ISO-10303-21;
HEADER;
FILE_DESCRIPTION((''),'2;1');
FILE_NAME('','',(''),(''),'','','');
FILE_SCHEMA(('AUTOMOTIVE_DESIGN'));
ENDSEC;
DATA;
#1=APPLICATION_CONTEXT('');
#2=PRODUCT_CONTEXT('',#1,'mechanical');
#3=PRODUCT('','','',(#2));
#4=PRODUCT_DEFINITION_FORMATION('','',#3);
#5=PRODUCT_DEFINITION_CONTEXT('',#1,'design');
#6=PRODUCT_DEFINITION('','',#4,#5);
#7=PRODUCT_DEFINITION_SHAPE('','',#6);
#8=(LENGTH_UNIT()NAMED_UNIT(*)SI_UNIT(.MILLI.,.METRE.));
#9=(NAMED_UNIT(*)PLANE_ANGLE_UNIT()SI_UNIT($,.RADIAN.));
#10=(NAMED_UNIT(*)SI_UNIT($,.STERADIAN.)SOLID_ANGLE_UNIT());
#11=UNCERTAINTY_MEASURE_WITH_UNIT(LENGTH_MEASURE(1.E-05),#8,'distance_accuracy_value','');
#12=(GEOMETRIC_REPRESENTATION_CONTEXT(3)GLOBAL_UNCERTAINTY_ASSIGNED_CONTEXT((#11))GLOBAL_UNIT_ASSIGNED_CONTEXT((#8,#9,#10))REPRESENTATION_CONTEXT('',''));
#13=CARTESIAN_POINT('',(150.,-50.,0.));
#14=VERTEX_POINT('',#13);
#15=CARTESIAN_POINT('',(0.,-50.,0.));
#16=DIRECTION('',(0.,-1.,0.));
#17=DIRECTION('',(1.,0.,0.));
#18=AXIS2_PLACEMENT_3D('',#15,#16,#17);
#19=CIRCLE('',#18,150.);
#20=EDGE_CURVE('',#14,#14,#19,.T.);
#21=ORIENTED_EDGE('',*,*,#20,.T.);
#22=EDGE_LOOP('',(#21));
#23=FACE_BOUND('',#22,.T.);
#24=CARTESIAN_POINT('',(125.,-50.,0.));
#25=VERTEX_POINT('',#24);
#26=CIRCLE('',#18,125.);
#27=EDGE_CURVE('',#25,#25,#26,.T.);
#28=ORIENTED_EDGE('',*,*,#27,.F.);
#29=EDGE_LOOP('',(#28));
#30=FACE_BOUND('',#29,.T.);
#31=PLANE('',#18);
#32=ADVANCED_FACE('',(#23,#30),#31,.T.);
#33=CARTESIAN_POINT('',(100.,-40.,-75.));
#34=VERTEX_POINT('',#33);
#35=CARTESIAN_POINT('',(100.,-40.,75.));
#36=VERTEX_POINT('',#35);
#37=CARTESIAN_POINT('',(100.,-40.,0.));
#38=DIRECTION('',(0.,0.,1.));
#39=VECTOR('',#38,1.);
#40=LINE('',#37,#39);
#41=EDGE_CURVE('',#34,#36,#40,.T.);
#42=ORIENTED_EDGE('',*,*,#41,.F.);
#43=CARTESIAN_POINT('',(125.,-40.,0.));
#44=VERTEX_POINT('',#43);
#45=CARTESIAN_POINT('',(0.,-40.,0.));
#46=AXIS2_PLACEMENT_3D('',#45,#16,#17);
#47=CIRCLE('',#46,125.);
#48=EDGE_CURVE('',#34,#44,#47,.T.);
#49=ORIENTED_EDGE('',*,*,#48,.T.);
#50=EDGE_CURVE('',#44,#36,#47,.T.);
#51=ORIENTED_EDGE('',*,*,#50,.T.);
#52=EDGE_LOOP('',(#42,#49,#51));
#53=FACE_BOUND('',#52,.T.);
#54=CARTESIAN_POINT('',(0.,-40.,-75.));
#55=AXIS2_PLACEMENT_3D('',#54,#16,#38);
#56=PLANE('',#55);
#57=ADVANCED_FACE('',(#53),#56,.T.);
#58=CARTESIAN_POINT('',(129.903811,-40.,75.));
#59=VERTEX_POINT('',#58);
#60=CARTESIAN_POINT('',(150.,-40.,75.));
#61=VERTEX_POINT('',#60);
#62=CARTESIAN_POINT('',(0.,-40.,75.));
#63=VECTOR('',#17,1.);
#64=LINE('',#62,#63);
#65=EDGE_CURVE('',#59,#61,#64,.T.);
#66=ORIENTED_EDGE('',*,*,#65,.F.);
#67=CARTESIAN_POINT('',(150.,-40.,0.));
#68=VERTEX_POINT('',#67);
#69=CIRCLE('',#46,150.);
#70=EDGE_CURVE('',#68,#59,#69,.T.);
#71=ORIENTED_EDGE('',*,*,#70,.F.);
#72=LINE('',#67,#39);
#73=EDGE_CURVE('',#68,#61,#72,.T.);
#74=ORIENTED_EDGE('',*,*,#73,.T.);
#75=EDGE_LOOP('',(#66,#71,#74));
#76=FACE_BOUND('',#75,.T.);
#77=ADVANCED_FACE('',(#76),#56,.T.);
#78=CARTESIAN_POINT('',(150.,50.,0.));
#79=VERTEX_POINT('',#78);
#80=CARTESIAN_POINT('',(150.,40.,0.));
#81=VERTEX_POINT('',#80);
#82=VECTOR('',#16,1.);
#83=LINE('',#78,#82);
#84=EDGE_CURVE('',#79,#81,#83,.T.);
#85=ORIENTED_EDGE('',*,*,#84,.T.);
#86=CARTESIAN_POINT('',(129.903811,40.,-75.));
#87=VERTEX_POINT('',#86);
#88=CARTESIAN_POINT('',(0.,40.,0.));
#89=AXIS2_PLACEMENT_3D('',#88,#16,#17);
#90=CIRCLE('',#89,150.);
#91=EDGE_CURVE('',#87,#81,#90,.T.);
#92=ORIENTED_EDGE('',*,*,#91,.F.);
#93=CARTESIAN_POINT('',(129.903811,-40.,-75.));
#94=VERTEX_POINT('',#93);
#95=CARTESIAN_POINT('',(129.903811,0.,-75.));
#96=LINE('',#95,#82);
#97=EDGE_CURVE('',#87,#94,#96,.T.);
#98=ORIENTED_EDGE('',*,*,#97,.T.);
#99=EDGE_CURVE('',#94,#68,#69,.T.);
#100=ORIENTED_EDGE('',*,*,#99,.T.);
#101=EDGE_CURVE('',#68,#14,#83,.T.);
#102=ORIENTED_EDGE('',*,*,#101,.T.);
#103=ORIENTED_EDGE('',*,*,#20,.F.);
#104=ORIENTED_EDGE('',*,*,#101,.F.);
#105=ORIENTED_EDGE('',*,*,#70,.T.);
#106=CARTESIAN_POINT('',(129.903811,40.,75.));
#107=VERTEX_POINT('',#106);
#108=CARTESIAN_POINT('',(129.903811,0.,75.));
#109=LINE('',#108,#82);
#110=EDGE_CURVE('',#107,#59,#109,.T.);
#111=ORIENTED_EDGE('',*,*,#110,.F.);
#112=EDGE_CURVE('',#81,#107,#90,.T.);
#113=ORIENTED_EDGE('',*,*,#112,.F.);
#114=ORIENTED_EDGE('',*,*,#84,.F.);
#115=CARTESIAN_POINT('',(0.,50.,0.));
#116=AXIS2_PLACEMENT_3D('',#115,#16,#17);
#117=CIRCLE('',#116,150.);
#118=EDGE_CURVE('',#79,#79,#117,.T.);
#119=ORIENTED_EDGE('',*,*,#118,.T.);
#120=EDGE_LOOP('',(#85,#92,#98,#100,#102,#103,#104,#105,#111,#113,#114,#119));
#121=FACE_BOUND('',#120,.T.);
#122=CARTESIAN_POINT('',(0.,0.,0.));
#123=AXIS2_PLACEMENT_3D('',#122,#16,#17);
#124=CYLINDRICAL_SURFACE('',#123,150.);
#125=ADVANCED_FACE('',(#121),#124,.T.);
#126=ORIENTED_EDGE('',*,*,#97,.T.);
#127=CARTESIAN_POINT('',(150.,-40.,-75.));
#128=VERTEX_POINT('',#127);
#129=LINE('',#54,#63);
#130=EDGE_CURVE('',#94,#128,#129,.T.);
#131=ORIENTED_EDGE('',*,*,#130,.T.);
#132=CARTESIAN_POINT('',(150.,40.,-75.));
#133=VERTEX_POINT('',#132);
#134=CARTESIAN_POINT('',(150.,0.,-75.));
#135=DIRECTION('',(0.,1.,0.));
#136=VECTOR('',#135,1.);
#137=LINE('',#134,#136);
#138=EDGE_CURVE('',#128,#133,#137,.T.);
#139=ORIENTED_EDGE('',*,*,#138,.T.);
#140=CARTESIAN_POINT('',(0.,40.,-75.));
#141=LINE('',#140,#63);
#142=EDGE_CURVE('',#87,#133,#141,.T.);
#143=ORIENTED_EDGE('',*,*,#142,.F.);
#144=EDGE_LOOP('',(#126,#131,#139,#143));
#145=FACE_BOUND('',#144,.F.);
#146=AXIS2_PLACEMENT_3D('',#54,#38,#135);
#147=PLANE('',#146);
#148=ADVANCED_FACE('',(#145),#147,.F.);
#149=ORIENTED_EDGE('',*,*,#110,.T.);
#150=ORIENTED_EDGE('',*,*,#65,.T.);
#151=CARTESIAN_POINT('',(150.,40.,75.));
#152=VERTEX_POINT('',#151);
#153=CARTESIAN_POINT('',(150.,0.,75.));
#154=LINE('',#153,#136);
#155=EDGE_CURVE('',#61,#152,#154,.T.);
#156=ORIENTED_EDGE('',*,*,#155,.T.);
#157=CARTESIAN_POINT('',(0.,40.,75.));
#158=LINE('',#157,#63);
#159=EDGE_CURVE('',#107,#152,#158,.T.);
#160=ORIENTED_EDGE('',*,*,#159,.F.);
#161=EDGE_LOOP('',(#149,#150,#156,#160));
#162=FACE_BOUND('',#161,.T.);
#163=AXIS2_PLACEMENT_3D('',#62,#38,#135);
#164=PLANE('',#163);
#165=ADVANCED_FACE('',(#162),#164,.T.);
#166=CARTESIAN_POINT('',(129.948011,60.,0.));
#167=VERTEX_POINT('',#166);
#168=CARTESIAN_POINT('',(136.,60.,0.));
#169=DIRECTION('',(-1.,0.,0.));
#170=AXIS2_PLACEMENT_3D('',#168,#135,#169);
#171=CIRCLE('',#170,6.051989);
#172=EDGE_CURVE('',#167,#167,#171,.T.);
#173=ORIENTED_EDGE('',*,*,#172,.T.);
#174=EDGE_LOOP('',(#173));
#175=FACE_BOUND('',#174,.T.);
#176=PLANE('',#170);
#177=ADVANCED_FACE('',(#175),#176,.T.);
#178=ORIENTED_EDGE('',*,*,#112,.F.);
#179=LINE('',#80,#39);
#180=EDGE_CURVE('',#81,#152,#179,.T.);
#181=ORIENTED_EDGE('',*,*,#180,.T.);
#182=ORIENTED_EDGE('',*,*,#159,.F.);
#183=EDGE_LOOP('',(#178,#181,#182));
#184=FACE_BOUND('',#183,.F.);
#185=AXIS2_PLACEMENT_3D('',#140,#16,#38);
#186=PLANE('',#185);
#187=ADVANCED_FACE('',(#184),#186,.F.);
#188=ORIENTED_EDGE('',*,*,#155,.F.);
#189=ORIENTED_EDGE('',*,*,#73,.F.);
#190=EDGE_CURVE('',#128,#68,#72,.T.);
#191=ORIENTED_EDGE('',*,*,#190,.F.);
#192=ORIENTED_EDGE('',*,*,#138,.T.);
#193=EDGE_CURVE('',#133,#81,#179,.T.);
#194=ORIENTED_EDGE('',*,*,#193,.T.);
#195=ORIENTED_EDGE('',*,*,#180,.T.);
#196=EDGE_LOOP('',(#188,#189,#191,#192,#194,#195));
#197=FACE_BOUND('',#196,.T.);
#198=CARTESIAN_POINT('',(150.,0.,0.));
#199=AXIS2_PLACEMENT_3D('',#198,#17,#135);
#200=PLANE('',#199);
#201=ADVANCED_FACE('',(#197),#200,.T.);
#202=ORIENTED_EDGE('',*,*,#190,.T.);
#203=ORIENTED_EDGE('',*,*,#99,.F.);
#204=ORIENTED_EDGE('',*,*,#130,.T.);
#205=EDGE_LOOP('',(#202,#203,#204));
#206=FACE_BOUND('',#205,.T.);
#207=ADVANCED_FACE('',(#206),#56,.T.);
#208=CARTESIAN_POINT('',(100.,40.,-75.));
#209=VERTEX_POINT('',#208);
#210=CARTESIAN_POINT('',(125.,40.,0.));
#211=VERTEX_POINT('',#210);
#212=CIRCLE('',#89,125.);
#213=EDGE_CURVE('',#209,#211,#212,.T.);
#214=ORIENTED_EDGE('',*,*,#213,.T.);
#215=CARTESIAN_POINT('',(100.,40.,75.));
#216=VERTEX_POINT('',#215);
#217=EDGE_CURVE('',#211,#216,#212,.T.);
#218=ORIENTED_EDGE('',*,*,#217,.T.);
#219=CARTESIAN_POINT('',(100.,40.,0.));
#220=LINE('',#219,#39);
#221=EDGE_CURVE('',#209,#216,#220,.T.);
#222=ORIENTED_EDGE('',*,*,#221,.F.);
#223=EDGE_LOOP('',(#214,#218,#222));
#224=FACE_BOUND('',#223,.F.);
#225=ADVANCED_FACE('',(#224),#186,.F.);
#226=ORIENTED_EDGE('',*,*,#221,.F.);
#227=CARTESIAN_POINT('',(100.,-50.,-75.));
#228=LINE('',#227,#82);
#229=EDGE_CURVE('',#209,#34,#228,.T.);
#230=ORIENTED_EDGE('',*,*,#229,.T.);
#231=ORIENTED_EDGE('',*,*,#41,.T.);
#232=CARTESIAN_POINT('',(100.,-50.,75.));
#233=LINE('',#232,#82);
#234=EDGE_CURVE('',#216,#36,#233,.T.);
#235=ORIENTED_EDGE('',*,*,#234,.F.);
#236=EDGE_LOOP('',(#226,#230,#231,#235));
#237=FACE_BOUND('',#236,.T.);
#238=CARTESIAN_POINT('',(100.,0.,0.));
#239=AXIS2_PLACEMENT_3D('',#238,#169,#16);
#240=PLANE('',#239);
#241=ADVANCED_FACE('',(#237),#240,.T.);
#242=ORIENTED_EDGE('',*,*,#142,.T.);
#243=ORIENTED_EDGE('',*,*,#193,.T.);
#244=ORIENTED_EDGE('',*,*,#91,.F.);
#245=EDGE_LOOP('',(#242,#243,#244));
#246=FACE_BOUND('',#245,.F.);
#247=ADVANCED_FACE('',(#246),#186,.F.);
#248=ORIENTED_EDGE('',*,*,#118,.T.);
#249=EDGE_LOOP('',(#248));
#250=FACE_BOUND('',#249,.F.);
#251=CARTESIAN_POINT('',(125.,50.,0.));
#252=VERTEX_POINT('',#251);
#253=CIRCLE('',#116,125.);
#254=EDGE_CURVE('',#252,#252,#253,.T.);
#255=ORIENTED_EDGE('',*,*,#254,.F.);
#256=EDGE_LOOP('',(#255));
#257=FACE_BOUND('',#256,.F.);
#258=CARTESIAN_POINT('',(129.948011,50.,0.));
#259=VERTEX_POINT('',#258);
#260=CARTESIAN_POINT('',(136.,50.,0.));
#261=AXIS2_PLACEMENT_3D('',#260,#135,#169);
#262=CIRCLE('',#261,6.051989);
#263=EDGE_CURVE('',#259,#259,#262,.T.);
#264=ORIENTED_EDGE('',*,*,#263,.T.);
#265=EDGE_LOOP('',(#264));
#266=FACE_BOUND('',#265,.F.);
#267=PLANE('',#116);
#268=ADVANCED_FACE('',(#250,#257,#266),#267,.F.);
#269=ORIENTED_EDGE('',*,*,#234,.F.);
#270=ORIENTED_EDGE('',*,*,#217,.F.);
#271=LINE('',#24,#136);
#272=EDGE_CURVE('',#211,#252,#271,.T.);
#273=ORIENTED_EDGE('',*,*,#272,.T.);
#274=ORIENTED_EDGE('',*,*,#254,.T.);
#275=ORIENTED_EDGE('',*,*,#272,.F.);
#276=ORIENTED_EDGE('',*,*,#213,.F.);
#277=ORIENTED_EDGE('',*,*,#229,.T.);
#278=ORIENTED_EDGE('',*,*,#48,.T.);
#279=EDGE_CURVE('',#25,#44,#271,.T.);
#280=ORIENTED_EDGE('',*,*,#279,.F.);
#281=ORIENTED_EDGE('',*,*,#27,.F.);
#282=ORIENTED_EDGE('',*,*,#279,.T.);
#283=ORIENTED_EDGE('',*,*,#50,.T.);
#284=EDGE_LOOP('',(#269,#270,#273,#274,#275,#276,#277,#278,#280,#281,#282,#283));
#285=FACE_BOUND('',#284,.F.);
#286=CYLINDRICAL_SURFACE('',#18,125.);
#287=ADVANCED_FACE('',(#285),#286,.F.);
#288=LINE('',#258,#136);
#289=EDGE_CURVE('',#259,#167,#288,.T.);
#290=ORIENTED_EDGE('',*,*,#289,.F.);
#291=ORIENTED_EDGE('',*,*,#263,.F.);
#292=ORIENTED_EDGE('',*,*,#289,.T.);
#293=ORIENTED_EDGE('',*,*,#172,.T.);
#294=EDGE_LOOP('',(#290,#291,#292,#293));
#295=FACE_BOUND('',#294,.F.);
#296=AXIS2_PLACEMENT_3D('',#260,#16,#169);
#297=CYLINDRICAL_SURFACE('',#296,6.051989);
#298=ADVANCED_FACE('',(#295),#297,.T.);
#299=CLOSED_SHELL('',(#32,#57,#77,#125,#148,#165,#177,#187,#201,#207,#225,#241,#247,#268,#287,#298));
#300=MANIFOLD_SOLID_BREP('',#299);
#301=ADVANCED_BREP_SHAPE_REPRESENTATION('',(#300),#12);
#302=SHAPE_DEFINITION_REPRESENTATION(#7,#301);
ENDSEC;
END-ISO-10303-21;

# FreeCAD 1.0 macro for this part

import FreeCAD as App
import Part
import Sketcher

V = App.Vector
Q = App.Units.Quantity


def add_polygon(sketch, points):
    """Adds a closed chain of lines whose ends are joined by coincident constraints."""
    first, n = sketch.GeometryCount, len(points)
    for a, b in zip(points, points[1:] + points[:1]):
        sketch.addGeometry(Part.LineSegment(App.Vector(*a, 0), App.Vector(*b, 0)), False)
    for i in range(n):
        sketch.addConstraint(Sketcher.Constraint("Coincident", first + i, 2, first + (i + 1) % n, 1))

doc = App.newDocument("Part")
body = doc.addObject("PartDesign::Body", "Body")

# Sketch on XZ plane
sketch1 = doc.addObject("Sketcher::SketchObject", "Sketch")
body.addObject(sketch1)
sketch1.AttachmentSupport = (doc.XZ_Plane, [""])
sketch1.MapMode = "FlatFace"
sketch1.addGeometry(Part.Circle(V(0, 0, 0), V(0, 0, 1), 150), False)
sketch1.addConstraint([
    Sketcher.Constraint("Coincident", 0, 3, -1, 1),
    Sketcher.Constraint("Diameter", 0, Q("300 mm")),
])
pad1 = doc.addObject("PartDesign::Pad", "Pad")
body.addObject(pad1)
pad1.Profile = sketch1
pad1.Length = 100
pad1.Midplane = True

# Sketch on XZ plane
sketch2 = doc.addObject("Sketcher::SketchObject", "Sketch001")
body.addObject(sketch2)
sketch2.AttachmentSupport = (doc.XZ_Plane, [""])
sketch2.MapMode = "FlatFace"
sketch2.AttachmentOffset = App.Placement(V(0, 0, 50), App.Rotation())
sketch2.addGeometry(Part.Circle(V(0, 0, 0), V(0, 0, 1), 125), False)
sketch2.addConstraint([
    Sketcher.Constraint("Coincident", 0, 3, -1, 1),
    Sketcher.Constraint("Diameter", 0, Q("250 mm")),
])
pocket1 = doc.addObject("PartDesign::Pocket", "Pocket")
body.addObject(pocket1)
pocket1.Profile = sketch2
pocket1.Type = "ThroughAll"

# Sketch on YZ plane
sketch3 = doc.addObject("Sketcher::SketchObject", "Sketch002")
body.addObject(sketch3)
sketch3.AttachmentSupport = (doc.YZ_Plane, [""])
sketch3.MapMode = "FlatFace"
add_polygon(sketch3, [(-40, 75), (-40, -75), (40, -75), (40, 75)])  # lines 0-3
sketch3.addConstraint([
    Sketcher.Constraint("Vertical", 0),
    Sketcher.Constraint("Horizontal", 1),
    Sketcher.Constraint("Vertical", 2),
    Sketcher.Constraint("Horizontal", 3),
    Sketcher.Constraint("Symmetric", 0, 2, 2, 2, -1, 1),
    Sketcher.Constraint("DistanceX", 1, 1, 1, 2, Q("80 mm")),
    Sketcher.Constraint("DistanceY", 0, 2, 0, 1, Q("150 mm")),
])
pad2 = doc.addObject("PartDesign::Pad", "Pad001")
body.addObject(pad2)
pad2.Profile = sketch3
pad2.Length = 150

# Sketch on YZ plane
sketch4 = doc.addObject("Sketcher::SketchObject", "Sketch003")
body.addObject(sketch4)
sketch4.AttachmentSupport = (doc.YZ_Plane, [""])
sketch4.MapMode = "FlatFace"
add_polygon(sketch4, [(40, 75), (40, -75), (-40, -75), (-40, 75)])  # lines 0-3
sketch4.addConstraint([
    Sketcher.Constraint("Vertical", 0),
    Sketcher.Constraint("Horizontal", 1),
    Sketcher.Constraint("Vertical", 2),
    Sketcher.Constraint("Horizontal", 3),
    Sketcher.Constraint("Symmetric", 0, 2, 2, 2, -1, 1),
    Sketcher.Constraint("DistanceX", 1, 2, 1, 1, Q("80 mm")),
    Sketcher.Constraint("DistanceY", 0, 2, 0, 1, Q("150 mm")),
])
pocket2 = doc.addObject("PartDesign::Pocket", "Pocket001")
body.addObject(pocket2)
pocket2.Profile = sketch4
pocket2.Length = 100
pocket2.Reversed = True

# Sketch on XZ plane
sketch5 = doc.addObject("Sketcher::SketchObject", "Sketch004")
body.addObject(sketch5)
sketch5.AttachmentSupport = (doc.XZ_Plane, [""])
sketch5.MapMode = "FlatFace"
sketch5.AttachmentOffset = App.Placement(V(0, 0, -50), App.Rotation())
sketch5.addGeometry(Part.Circle(V(136, 0, 0), V(0, 0, 1), 6.051989), False)
sketch5.addConstraint([
    Sketcher.Constraint("PointOnObject", 0, 3, -1),
    Sketcher.Constraint("DistanceX", -1, 1, 0, 3, Q("136 mm")),
    Sketcher.Constraint("Diameter", 0, Q("12.103978 mm")),
])
pad3 = doc.addObject("PartDesign::Pad", "Pad002")
body.addObject(pad3)
pad3.Profile = sketch5
pad3.Length = 10
pad3.Reversed = True

doc.recompute()
